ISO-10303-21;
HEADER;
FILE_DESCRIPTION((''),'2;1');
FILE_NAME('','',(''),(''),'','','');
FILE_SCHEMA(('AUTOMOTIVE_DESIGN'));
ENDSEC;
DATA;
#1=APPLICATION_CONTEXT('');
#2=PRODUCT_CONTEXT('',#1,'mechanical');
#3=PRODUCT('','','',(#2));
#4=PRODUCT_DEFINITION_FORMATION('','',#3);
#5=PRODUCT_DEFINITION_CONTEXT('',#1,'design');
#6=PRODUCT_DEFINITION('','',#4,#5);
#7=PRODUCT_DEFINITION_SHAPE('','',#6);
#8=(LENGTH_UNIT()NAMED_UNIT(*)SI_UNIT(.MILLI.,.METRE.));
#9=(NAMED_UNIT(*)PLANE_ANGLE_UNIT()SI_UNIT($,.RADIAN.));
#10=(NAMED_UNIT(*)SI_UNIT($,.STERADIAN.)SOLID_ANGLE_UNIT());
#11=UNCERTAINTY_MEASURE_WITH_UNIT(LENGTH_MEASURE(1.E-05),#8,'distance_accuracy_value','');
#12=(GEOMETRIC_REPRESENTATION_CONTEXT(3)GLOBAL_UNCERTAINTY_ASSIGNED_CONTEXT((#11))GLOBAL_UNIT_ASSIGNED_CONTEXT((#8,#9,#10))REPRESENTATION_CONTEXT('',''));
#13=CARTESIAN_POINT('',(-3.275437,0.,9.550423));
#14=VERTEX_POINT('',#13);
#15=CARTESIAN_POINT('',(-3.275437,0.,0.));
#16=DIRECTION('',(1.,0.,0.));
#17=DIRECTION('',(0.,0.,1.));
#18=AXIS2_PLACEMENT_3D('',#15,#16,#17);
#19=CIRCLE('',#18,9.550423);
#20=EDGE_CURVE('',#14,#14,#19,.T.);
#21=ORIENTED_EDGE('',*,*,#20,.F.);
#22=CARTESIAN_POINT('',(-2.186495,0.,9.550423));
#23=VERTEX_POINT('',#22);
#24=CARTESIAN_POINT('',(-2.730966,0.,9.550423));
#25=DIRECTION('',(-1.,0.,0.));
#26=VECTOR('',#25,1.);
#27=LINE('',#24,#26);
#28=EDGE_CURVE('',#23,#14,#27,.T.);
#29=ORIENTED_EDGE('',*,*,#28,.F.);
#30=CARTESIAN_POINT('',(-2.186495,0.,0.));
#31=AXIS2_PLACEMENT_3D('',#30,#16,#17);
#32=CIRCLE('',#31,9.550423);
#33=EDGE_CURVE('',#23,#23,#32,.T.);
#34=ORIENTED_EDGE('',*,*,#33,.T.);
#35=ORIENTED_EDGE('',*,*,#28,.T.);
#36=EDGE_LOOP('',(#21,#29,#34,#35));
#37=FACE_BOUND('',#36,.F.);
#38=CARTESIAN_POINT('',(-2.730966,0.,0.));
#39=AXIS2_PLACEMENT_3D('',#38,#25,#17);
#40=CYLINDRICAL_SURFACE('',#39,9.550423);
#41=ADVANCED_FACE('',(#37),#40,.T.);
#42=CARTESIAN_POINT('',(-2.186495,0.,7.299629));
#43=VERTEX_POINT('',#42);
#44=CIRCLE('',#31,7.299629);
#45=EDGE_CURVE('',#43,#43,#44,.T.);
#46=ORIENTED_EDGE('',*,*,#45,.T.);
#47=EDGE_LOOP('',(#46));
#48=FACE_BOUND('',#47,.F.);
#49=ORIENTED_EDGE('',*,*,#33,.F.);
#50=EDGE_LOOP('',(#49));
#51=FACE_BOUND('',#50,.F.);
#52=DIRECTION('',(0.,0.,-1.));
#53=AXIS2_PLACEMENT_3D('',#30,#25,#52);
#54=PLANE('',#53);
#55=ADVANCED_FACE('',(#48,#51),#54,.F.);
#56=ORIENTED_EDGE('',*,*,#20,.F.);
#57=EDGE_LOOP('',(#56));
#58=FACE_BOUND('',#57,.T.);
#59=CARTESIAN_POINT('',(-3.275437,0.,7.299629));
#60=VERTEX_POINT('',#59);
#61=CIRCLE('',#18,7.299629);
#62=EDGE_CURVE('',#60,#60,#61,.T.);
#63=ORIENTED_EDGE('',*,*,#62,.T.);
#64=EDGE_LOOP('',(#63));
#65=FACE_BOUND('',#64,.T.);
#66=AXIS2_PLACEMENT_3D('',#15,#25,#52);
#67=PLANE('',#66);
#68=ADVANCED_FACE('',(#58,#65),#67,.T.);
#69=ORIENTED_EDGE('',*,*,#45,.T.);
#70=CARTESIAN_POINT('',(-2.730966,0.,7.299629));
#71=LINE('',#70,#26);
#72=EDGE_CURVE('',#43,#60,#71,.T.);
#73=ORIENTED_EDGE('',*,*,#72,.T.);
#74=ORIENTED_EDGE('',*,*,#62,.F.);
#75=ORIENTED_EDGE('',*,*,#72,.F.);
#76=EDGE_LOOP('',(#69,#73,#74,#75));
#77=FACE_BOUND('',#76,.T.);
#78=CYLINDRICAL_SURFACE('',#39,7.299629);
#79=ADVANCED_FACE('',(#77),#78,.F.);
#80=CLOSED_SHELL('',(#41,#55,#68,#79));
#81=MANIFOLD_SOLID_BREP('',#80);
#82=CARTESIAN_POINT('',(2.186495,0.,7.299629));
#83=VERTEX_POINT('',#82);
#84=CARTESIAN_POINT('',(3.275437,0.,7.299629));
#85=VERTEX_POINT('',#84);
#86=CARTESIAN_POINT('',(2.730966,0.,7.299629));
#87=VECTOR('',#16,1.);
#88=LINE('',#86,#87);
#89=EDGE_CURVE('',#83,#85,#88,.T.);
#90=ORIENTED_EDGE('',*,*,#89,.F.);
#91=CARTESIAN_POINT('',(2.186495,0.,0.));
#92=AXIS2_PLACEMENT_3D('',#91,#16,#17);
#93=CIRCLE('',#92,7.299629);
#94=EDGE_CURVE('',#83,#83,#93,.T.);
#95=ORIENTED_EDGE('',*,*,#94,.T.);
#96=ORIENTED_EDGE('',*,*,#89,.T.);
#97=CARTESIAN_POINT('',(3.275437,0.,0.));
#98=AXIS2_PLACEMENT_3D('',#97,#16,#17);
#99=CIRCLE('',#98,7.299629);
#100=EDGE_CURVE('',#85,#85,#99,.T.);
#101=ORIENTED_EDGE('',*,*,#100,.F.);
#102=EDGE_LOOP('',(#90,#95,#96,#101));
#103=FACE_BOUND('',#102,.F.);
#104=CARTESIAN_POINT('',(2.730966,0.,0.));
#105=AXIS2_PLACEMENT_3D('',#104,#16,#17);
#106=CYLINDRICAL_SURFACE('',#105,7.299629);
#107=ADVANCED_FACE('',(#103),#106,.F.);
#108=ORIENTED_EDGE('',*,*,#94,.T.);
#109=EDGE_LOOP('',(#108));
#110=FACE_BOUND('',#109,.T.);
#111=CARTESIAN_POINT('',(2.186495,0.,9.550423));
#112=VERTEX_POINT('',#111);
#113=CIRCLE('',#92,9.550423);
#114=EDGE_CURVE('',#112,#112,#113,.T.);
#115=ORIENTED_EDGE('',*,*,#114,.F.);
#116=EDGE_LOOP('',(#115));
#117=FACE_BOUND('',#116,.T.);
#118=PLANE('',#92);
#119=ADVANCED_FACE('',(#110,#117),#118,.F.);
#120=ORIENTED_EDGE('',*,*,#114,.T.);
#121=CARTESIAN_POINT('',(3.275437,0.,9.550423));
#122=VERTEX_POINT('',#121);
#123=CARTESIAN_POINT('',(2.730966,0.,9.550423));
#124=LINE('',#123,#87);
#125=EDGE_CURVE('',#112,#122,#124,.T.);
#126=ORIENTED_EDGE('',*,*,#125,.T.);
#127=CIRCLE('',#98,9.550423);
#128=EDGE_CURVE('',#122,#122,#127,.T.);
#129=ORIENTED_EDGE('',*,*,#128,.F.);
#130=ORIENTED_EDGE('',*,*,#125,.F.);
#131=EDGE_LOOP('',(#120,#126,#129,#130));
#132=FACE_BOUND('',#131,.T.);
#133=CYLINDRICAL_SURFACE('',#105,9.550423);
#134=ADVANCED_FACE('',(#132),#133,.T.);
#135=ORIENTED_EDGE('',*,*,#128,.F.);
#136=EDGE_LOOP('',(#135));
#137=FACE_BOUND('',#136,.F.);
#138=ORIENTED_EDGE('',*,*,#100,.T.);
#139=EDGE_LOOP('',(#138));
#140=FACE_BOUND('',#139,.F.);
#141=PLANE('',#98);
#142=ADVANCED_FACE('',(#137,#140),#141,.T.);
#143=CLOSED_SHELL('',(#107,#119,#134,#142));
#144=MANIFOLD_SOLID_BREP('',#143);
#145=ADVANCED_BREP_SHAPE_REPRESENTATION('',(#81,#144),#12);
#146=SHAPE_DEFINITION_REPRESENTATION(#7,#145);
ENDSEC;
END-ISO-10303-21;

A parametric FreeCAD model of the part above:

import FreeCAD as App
import Part
import Sketcher
from FreeCAD import Vector
Q = App.Units.Quantity


def add_polygon(sketch, points):
    """Adds a closed chain of lines whose ends are joined by coincident constraints."""
    first, n = sketch.GeometryCount, len(points)
    for a, b in zip(points, points[1:] + points[:1]):
        sketch.addGeometry(Part.LineSegment(App.Vector(*a, 0), App.Vector(*b, 0)), False)
    for i in range(n):
        sketch.addConstraint(Sketcher.Constraint("Coincident", first + i, 2, first + (i + 1) % n, 1))

doc = App.newDocument("Part")
body = doc.addObject("PartDesign::Body", "Body")

sketch1 = doc.addObject("Sketcher::SketchObject", "Sketch")
body.addObject(sketch1)
sketch1.AttachmentSupport = (doc.XZ_Plane, [""])
sketch1.MapMode = "FlatFace"
add_polygon(sketch1, [(2.2, 9.6), (2.2, 7.3), (3.3, 7.3), (3.3, 9.6)])
sketch1.addConstraint(Sketcher.Constraint("Vertical", 0))
sketch1.addConstraint(Sketcher.Constraint("Horizontal", 1))
sketch1.addConstraint(Sketcher.Constraint("Vertical", 2))
sketch1.addConstraint(Sketcher.Constraint("Horizontal", 3))
sketch1.addConstraint(Sketcher.Constraint("DistanceX", 1, 1, 1, 2, Q("1.088942 mm")))
sketch1.addConstraint(Sketcher.Constraint("DistanceY", 0, 2, 0, 1, Q("2.250794 mm")))
sketch1.addConstraint(Sketcher.Constraint("DistanceY", -1, 1, 0, 2, Q("7.299629 mm")))
sketch1.addConstraint(Sketcher.Constraint("DistanceX", -1, 1, 0, 2, Q("2.186495 mm")))
revolution = doc.addObject("PartDesign::Revolution", "Revolution")
body.addObject(revolution)
revolution.Profile = sketch1
revolution.ReferenceAxis = (sketch1, ["H_Axis"])
revolution.Angle = 360
body2 = doc.addObject("PartDesign::Body", "Body001")
doc.recompute()

mirroring = doc.addObject("Part::Mirroring", "Mirroring")
mirroring.Source = body
mirroring.Base = Vector(0, 0, 0)
mirroring.Normal = Vector(1, 0, 0)
body2.BaseFeature = mirroring
doc.recompute()
mirroring.Visibility = False

doc.recompute()
